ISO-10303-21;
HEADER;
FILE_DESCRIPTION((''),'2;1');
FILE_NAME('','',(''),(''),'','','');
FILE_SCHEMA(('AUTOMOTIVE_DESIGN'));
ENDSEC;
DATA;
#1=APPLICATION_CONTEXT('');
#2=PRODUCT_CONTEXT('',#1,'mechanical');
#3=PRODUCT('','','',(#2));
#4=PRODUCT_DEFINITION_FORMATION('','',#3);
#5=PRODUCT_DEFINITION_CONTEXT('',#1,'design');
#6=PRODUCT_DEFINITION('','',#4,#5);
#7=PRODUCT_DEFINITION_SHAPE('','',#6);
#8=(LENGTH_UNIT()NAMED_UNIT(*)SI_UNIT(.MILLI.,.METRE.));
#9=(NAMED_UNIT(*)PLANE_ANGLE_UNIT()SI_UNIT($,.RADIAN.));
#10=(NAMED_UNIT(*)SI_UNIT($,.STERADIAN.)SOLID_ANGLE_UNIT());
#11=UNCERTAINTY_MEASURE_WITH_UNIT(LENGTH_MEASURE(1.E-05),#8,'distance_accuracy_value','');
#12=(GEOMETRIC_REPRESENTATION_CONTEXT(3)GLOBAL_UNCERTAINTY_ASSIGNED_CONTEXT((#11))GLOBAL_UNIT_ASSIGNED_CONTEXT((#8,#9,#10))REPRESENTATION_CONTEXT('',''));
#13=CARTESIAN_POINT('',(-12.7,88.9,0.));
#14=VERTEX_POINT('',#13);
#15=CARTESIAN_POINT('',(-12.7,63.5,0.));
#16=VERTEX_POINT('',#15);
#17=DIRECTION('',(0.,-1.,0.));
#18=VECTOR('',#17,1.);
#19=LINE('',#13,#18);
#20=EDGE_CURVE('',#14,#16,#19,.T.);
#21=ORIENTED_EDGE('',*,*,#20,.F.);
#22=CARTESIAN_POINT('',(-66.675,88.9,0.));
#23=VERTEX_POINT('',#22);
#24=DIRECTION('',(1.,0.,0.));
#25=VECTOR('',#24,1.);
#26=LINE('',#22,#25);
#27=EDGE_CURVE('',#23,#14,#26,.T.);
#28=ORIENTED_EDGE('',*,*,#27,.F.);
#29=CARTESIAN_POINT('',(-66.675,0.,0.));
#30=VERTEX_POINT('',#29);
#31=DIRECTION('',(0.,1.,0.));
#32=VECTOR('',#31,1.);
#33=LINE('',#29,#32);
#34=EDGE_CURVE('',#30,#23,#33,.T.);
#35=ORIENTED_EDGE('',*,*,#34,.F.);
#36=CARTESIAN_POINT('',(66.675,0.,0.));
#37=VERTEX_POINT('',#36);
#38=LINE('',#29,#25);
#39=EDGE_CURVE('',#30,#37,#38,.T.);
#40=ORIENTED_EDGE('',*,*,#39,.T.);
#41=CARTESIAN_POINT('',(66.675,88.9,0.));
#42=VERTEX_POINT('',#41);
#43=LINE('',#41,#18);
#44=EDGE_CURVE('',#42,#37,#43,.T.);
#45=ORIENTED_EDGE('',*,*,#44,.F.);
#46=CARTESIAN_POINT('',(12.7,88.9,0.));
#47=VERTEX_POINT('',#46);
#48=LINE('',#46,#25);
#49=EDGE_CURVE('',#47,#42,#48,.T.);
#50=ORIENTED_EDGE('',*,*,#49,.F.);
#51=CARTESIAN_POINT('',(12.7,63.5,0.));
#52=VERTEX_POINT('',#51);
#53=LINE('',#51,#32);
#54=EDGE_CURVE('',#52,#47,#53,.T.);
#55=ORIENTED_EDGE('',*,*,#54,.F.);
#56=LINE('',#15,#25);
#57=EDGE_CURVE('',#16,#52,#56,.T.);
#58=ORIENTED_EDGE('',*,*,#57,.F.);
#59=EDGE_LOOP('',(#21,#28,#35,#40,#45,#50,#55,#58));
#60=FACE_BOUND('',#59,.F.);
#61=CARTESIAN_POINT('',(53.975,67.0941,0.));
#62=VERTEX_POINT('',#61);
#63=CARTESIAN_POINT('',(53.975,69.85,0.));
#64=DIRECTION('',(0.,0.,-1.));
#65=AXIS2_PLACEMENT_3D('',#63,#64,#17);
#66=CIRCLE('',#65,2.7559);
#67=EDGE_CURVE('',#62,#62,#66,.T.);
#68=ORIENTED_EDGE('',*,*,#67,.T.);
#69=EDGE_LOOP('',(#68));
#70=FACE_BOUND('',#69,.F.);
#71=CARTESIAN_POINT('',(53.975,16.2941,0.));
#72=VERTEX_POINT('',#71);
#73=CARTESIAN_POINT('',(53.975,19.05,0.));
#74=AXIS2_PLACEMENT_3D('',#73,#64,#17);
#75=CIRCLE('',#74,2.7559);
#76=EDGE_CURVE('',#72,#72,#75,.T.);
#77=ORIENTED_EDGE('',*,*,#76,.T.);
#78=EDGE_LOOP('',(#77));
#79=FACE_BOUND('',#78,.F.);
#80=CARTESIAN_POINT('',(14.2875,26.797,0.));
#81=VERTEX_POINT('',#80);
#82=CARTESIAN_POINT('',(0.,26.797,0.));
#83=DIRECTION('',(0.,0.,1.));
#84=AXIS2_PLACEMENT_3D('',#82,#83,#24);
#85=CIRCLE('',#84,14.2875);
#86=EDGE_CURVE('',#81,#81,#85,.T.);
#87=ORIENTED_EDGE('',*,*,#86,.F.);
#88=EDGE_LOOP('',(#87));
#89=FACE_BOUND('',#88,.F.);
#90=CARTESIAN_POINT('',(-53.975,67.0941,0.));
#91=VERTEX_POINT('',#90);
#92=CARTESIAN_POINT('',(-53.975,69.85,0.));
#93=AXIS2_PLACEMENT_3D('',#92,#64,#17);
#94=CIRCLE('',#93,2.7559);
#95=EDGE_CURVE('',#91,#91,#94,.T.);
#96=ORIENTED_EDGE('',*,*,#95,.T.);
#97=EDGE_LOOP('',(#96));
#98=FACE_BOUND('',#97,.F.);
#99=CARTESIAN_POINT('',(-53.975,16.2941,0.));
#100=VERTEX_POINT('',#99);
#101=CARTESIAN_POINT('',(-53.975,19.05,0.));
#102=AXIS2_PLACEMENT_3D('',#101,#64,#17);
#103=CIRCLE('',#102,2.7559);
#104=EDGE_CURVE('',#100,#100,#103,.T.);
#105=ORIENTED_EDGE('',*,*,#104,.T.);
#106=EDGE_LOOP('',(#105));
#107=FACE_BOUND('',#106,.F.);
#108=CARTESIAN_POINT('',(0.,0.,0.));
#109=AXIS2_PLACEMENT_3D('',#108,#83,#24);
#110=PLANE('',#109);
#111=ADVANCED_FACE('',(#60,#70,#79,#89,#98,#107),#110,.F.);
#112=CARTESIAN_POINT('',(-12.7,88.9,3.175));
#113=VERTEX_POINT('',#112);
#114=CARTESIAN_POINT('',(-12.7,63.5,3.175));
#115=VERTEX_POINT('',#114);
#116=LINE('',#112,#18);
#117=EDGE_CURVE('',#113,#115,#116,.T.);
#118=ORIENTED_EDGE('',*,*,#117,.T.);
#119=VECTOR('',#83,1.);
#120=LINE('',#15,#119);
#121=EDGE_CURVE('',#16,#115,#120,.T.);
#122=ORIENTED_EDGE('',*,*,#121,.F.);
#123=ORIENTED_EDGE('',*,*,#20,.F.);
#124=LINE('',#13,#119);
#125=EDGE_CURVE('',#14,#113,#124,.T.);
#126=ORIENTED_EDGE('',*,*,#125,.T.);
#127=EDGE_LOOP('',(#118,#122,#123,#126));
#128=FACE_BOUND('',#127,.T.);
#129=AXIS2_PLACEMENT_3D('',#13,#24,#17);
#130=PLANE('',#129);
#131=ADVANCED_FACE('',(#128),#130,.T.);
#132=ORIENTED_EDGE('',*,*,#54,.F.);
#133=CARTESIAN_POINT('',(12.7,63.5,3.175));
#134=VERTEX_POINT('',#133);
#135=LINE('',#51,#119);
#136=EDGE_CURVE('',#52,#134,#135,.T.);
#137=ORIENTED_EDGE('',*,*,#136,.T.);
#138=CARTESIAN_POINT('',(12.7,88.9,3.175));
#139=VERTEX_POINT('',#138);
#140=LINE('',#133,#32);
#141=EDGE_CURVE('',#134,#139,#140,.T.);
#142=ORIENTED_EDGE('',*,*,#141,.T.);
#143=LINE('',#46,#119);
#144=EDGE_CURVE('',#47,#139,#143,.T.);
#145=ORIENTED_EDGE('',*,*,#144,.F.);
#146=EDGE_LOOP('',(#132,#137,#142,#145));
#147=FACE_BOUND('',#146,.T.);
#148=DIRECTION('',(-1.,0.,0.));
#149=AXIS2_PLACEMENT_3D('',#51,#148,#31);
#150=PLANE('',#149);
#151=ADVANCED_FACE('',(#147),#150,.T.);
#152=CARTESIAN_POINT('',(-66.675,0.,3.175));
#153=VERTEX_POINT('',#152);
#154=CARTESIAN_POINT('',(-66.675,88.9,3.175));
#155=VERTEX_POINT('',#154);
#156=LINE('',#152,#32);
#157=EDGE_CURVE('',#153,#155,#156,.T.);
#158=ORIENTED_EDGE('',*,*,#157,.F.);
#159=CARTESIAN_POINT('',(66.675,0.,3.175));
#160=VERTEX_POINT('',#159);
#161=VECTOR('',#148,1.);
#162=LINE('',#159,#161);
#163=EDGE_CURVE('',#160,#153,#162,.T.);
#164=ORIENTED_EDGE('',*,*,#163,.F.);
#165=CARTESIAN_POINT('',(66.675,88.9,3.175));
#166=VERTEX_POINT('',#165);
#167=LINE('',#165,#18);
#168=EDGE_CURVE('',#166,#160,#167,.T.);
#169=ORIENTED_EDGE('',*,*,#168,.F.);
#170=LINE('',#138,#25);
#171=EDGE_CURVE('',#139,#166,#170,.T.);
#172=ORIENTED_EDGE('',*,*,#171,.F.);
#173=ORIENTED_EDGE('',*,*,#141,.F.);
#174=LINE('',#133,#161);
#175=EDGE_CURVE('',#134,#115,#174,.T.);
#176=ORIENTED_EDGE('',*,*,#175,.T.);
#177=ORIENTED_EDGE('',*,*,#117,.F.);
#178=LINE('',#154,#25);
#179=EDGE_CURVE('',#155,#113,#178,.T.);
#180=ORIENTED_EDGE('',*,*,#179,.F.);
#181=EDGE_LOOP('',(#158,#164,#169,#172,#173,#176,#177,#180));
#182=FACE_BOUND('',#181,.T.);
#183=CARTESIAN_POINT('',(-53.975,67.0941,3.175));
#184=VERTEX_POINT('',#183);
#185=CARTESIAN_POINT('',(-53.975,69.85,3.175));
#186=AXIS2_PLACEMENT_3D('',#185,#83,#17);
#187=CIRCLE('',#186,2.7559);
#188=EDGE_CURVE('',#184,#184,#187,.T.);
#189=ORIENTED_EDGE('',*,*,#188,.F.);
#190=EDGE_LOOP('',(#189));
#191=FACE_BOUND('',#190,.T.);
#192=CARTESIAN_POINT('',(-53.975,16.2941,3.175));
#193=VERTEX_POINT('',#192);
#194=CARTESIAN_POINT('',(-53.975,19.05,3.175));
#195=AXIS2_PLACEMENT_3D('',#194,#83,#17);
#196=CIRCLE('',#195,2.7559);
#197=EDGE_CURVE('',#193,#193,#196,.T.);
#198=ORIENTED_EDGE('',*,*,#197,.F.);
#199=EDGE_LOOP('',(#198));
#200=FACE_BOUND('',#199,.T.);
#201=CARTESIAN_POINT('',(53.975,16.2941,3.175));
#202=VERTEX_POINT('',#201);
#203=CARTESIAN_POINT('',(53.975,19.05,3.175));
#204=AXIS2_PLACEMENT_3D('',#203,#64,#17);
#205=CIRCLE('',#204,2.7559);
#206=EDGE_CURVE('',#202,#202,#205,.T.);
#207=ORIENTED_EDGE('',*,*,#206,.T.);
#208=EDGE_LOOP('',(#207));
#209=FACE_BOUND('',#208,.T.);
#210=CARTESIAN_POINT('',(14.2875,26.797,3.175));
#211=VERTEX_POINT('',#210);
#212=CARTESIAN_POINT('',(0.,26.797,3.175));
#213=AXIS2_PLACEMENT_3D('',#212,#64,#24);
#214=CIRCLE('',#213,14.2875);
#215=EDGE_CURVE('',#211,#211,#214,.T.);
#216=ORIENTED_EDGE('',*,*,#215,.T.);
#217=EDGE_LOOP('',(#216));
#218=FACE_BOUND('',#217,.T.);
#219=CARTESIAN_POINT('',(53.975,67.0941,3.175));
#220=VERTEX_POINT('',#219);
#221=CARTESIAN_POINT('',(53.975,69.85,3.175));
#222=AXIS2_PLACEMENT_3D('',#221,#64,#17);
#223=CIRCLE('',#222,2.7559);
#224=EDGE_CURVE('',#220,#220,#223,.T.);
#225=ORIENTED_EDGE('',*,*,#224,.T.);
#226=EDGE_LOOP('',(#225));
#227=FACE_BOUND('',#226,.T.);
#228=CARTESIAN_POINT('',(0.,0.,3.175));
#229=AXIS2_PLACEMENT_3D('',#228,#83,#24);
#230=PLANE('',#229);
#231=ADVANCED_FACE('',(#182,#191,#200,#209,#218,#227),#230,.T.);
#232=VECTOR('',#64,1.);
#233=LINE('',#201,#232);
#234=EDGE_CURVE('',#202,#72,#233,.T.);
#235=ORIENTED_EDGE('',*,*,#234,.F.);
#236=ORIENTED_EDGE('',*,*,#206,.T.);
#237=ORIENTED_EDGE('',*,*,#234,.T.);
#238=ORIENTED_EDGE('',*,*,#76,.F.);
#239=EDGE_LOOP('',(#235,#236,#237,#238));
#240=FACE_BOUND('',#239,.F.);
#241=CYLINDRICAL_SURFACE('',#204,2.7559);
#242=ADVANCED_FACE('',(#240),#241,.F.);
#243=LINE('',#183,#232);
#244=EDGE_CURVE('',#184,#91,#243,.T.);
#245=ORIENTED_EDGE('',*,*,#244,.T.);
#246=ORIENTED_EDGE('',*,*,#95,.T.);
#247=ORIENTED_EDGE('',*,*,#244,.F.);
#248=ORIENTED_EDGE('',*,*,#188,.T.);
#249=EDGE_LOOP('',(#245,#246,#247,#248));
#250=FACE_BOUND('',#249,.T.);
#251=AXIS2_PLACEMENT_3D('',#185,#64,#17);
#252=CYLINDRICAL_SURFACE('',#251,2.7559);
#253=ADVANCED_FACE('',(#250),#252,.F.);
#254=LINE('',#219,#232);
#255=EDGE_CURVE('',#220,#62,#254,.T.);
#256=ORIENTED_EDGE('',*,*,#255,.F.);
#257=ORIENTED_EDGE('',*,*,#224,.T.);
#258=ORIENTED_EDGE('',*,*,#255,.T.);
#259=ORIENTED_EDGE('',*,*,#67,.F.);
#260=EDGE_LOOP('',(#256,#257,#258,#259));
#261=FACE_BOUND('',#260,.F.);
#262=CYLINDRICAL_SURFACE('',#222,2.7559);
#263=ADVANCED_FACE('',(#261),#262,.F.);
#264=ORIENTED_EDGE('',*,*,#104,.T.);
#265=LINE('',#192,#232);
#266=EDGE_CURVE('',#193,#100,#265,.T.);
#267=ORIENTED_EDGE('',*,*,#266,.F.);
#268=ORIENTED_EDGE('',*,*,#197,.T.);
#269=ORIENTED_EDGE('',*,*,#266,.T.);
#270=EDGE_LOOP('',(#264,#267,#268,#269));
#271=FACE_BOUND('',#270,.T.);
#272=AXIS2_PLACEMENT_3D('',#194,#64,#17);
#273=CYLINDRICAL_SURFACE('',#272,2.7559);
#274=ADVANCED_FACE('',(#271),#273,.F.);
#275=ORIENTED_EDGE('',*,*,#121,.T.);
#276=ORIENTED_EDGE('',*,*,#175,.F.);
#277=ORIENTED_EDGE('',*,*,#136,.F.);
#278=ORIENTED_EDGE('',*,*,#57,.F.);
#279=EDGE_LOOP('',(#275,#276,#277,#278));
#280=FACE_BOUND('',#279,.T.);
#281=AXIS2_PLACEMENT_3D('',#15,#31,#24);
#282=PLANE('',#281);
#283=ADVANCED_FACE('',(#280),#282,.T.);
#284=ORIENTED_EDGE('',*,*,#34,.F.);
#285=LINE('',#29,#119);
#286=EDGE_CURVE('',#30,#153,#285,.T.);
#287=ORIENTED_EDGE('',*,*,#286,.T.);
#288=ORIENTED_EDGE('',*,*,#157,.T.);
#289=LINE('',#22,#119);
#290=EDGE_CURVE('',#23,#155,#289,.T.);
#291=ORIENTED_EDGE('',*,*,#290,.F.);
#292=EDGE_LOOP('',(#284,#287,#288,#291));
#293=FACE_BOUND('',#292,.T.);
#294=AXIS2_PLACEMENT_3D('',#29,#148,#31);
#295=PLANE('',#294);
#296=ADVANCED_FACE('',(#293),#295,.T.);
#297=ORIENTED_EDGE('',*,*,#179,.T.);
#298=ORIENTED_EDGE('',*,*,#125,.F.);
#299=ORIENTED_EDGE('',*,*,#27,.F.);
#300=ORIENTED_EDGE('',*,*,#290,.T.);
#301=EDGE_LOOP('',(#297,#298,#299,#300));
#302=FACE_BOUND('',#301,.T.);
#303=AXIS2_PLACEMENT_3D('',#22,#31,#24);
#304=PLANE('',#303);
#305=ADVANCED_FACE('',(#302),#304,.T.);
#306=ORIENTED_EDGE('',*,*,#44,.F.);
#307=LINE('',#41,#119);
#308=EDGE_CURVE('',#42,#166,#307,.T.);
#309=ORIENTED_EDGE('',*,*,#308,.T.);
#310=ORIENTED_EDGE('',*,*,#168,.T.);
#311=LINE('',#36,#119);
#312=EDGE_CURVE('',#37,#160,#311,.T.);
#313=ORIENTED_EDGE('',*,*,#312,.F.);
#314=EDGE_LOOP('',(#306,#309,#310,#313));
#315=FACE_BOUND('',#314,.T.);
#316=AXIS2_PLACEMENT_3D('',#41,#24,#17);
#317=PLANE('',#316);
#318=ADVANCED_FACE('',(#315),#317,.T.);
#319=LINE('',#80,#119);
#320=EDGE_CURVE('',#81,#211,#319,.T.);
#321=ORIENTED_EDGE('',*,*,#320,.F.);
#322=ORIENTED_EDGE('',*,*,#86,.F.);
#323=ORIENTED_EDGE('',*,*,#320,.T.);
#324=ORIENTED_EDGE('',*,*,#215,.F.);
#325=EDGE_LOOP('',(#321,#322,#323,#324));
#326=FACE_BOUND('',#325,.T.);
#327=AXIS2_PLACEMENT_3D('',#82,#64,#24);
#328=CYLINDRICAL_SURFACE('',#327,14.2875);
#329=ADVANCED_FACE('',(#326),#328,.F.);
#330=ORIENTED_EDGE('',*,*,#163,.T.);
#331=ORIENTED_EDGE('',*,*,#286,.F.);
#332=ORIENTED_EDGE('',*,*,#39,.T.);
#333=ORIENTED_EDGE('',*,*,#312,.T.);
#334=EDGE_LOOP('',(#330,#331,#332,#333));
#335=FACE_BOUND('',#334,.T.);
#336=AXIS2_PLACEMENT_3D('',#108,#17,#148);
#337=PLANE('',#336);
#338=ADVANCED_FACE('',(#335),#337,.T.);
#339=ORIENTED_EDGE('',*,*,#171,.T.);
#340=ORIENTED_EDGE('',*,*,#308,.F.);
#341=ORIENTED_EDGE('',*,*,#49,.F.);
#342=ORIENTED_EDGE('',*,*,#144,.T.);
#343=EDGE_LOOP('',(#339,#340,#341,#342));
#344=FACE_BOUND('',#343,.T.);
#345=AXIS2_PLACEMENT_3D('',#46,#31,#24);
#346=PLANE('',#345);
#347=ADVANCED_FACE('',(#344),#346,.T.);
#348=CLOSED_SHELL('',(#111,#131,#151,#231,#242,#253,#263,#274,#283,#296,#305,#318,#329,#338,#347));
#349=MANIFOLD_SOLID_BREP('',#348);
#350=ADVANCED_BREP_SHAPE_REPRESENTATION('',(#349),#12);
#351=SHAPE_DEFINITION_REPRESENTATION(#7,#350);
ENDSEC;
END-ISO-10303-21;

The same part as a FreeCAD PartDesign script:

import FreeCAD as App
import Part
import Sketcher

V = App.Vector
Q = App.Units.Quantity


def add_polygon(sketch, points):
    """Adds a closed chain of lines whose ends are joined by coincident constraints."""
    first, n = sketch.GeometryCount, len(points)
    for a, b in zip(points, points[1:] + points[:1]):
        sketch.addGeometry(Part.LineSegment(App.Vector(*a, 0), App.Vector(*b, 0)), False)
    for i in range(n):
        sketch.addConstraint(Sketcher.Constraint("Coincident", first + i, 2, first + (i + 1) % n, 1))

doc = App.newDocument("Part")
params = doc.addObject("Spreadsheet::Sheet", "Params")
for row, (alias, value) in enumerate([
    ("sketch1_width", "1 in"),
    ("sketch1_diameter", "1.125 in"),
    ("sketch1_height", "3.5 in"),
    ("sketch1_width2", "5.25 in"),
    ("pad1_length", "0.125 in"),
    ("sketch2_diameter", "0.217 in"),
    ("hole_diameter", "0.217 in"),
], start=1):
    params.set(f"A{row}", alias)
    params.set(f"B{row}", "=" + value)
    params.setAlias(f"B{row}", alias)

body = doc.addObject("PartDesign::Body", "Body")

sketch1 = body.newObject("Sketcher::SketchObject", "Sketch")
sketch1.AttachmentSupport = (doc.getObject("XY_Plane"), [""])
sketch1.MapMode = "FlatFace"
add_polygon(sketch1, [(-67, 0), (67, 0), (67, 89), (13, 89), (13, 64), (-13, 64), (-13, 89), (-67, 89)])
sketch1.addGeometry(Part.Circle(V(0, 27, 0), V(0, 0, 1), 14), False)
sketch1.addConstraint(Sketcher.Constraint("Horizontal", 0))
sketch1.addConstraint(Sketcher.Constraint("Vertical", 1))
sketch1.addConstraint(Sketcher.Constraint("Horizontal", 2))
sketch1.addConstraint(Sketcher.Constraint("Vertical", 3))
sketch1.addConstraint(Sketcher.Constraint("Horizontal", 4))
sketch1.addConstraint(Sketcher.Constraint("Vertical", 5))
sketch1.addConstraint(Sketcher.Constraint("Horizontal", 6))
sketch1.addConstraint(Sketcher.Constraint("Vertical", 7))
sketch1.addConstraint(Sketcher.Constraint("Symmetric", 0, 2, 7, 2, -1, 1))
sketch1.addConstraint(Sketcher.Constraint("Symmetric", 2, 2, 5, 2, -2))
sketch1.addConstraint(Sketcher.Constraint("PointOnObject", 8, 3, -2))
sketch1.addConstraint(Sketcher.Constraint("Equal", 4, 3))
sketch1.addConstraint(Sketcher.Constraint("DistanceX", 4, 2, 4, 1, Q("1 in")))
sketch1.addConstraint(Sketcher.Constraint("Diameter", 8, Q("1.125 in")))
sketch1.addConstraint(Sketcher.Constraint("DistanceY", 1, 1, 1, 2, Q("3.5 in")))
sketch1.addConstraint(Sketcher.Constraint("DistanceX", 0, 1, 0, 2, Q("5.25 in")))
sketch1.addConstraint(Sketcher.Constraint("DistanceY", 8, 3, 1, 2, Q("2.445 in")))
sketch1.setExpression("Constraints[20]", "Params.sketch1_width")
sketch1.setExpression("Constraints[21]", "Params.sketch1_diameter")
sketch1.setExpression("Constraints[22]", "Params.sketch1_height")
sketch1.setExpression("Constraints[23]", "Params.sketch1_width2")
pad1 = body.newObject("PartDesign::Pad", "Pad")
pad1.Profile = sketch1
pad1.setExpression("Length", "Params.pad1_length")

sketch2 = body.newObject("Sketcher::SketchObject", "Sketch001")
sketch2.AttachmentSupport = (doc.getObject("XY_Plane"), [""])
sketch2.MapMode = "FlatFace"
sketch2.AttachmentOffset = App.Placement(V(0, 0, 0.125 * 25.4), App.Rotation())
sketch2.addGeometry(Part.Circle(V(54, 69.8, 0), V(0, 0, 1), 2.8), False)
sketch2.addGeometry(Part.Circle(V(54, 19.1, 0), V(0, 0, 1), 2.8), False)
sketch2.addConstraint(Sketcher.Constraint("Equal", 0, 1))
sketch2.addConstraint(Sketcher.Constraint("Vertical", 0, 3, 1, 3))
sketch2.addConstraint(Sketcher.Constraint("Diameter", 0, Q("0.217 in")))
sketch2.addConstraint(Sketcher.Constraint("DistanceY", 1, 3, 0, 3, Q("2 in")))
sketch2.addConstraint(Sketcher.Constraint("DistanceY", -1, 1, 0, 3, Q("2.75 in")))
sketch2.addConstraint(Sketcher.Constraint("DistanceX", -1, 1, 0, 3, Q("2.125 in")))
sketch2.setExpression("Constraints[2]", "Params.sketch2_diameter")
doc.recompute()
hole = body.newObject("PartDesign::Hole", "Hole")
hole.Profile = sketch2
hole.ThreadType = "None"
hole.setExpression("Diameter", "Params.hole_diameter")
hole.DepthType = "ThroughAll"
doc.recompute()

mirrored = body.newObject("PartDesign::Mirrored", "Mirrored")
mirrored.Originals = [hole]
mirrored.MirrorPlane = (doc.getObject("YZ_Plane"), [""])
body.Tip = mirrored

doc.recompute()
